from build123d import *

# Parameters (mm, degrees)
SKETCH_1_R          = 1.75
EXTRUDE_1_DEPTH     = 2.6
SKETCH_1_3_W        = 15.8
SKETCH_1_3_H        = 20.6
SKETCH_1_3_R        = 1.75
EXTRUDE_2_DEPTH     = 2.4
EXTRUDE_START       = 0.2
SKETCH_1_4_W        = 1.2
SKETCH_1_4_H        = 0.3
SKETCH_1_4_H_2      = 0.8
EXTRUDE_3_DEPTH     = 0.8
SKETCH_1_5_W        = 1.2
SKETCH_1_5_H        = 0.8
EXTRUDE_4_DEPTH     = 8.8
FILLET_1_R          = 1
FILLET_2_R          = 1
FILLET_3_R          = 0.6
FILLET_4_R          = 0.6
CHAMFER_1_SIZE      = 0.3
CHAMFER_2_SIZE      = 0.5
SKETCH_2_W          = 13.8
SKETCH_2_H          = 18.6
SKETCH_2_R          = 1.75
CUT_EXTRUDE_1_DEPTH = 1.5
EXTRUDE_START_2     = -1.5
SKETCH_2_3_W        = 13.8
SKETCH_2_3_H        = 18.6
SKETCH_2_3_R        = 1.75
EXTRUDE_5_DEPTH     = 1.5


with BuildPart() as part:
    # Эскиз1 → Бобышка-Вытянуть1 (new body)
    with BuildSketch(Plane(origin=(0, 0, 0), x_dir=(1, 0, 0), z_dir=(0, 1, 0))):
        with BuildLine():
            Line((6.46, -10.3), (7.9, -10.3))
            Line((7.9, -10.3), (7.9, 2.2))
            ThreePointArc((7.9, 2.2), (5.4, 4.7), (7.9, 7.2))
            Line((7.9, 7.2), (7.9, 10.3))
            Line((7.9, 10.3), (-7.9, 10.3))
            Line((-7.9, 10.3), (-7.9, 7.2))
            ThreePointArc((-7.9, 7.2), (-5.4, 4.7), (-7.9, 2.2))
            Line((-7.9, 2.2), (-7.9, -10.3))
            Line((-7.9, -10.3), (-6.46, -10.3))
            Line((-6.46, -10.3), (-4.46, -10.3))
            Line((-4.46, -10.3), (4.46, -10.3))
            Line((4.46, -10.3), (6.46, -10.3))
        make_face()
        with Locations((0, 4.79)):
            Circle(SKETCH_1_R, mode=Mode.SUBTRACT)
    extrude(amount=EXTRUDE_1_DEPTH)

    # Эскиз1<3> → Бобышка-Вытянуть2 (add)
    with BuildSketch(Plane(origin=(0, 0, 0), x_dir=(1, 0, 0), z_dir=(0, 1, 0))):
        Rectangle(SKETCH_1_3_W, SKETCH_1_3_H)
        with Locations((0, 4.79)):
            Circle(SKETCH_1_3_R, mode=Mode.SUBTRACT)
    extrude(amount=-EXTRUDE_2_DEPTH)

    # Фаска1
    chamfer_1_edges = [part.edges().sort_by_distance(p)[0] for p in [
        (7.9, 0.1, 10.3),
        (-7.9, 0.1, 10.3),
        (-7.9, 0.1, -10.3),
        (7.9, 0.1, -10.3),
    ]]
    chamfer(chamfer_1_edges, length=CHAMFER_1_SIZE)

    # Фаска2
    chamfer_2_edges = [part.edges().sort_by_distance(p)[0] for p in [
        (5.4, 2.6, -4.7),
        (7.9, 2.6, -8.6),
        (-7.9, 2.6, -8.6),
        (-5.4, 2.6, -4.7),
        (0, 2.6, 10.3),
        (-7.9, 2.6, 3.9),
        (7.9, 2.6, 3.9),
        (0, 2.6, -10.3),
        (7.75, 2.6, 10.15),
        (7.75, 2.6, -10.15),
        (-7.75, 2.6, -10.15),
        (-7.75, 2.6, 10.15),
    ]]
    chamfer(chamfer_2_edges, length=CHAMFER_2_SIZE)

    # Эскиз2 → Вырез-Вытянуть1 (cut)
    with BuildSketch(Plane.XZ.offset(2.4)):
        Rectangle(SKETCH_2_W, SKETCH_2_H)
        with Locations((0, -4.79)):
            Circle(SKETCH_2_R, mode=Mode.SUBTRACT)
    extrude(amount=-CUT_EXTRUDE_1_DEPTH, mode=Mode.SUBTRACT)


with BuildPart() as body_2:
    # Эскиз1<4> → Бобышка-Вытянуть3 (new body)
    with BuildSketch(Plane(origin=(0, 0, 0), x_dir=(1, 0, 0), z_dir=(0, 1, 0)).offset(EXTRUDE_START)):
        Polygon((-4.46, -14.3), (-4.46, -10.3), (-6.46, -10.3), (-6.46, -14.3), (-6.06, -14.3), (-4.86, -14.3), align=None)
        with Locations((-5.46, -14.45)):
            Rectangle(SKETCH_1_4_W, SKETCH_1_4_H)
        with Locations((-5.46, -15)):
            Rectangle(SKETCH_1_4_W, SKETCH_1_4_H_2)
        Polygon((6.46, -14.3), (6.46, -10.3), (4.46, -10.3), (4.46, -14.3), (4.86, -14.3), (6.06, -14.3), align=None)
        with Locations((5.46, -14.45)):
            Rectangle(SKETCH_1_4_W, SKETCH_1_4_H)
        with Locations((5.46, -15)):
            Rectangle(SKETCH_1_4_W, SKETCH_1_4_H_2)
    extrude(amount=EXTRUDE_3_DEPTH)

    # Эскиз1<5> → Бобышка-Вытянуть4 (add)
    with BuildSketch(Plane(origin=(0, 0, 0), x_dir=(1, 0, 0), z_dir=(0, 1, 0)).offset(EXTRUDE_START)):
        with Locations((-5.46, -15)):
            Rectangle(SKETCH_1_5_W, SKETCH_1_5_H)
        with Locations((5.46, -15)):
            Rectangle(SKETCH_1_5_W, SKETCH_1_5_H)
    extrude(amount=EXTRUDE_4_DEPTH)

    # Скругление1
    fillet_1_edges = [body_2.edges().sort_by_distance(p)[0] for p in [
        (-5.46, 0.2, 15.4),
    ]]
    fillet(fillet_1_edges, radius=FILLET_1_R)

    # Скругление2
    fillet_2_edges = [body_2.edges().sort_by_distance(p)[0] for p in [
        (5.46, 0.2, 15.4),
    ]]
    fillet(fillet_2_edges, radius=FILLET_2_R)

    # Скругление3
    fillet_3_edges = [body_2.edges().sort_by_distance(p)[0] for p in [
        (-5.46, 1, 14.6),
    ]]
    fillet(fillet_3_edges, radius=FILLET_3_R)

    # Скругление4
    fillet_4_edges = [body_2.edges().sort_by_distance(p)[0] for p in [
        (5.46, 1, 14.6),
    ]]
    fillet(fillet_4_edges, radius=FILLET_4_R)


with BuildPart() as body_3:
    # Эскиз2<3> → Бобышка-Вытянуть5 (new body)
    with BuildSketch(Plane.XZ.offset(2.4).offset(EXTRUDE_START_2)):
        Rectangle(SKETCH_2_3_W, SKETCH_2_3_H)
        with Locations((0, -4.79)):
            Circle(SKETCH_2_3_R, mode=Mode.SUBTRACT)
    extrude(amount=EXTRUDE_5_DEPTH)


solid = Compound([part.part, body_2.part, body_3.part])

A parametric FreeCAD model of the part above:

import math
import FreeCAD as App
import Part
import Sketcher


def edges_at(feature, points):
    """Names of the edges that pass closest to the given points."""
    edges = feature.Shape.Edges
    near = lambda p: min(range(len(edges)), key=lambda i: edges[i].distToShape(Part.Vertex(*p))[0])
    return sorted({f"Edge{near(p) + 1}" for p in points})

doc = App.newDocument("Part")
body = doc.addObject("PartDesign::Body", "Body")

# Sketch on XZ plane
sketch1 = doc.addObject("Sketcher::SketchObject", "Sketch")
body.addObject(sketch1)
sketch1.AttachmentSupport = (doc.XZ_Plane, [""])
sketch1.MapMode = "FlatFace"
sketch1.addGeometry(Part.LineSegment(App.Vector(7.9, 10.3, 0), App.Vector(7.9, -2.2, 0)), False)
sketch1.addGeometry(Part.ArcOfCircle(Part.Circle(App.Vector(7.9, -4.7, 0), App.Vector(0, 0, 1), 2.5), math.radians(90), math.radians(270)), False)
sketch1.addGeometry(Part.LineSegment(App.Vector(7.9, -7.2, 0), App.Vector(7.9, -10.3, 0)), False)
sketch1.addGeometry(Part.LineSegment(App.Vector(7.9, -10.3, 0), App.Vector(-7.9, -10.3, 0)), False)
sketch1.addGeometry(Part.LineSegment(App.Vector(-7.9, -10.3, 0), App.Vector(-7.9, -7.2, 0)), False)
sketch1.addGeometry(Part.ArcOfCircle(Part.Circle(App.Vector(-7.9, -4.7, 0), App.Vector(0, 0, 1), 2.5), math.radians(-90), math.radians(90)), False)
sketch1.addGeometry(Part.LineSegment(App.Vector(-7.9, -2.2, 0), App.Vector(-7.9, 10.3, 0)), False)
sketch1.addGeometry(Part.LineSegment(App.Vector(-7.9, 10.3, 0), App.Vector(7.9, 10.3, 0)), False)
sketch1.addGeometry(Part.Circle(App.Vector(0, -4.79, 0), App.Vector(0, 0, 1), 1.75), False)
sketch1.addConstraint(Sketcher.Constraint("Coincident", 0, 2, 1, 1))
sketch1.addConstraint(Sketcher.Constraint("Coincident", 1, 2, 2, 1))
sketch1.addConstraint(Sketcher.Constraint("Coincident", 2, 2, 3, 1))
sketch1.addConstraint(Sketcher.Constraint("Coincident", 3, 2, 4, 1))
sketch1.addConstraint(Sketcher.Constraint("Coincident", 4, 2, 5, 1))
sketch1.addConstraint(Sketcher.Constraint("Coincident", 5, 2, 6, 1))
sketch1.addConstraint(Sketcher.Constraint("Coincident", 6, 2, 7, 1))
sketch1.addConstraint(Sketcher.Constraint("Coincident", 7, 2, 0, 1))
sketch1.addConstraint(Sketcher.Constraint("Vertical", 0))
sketch1.addConstraint(Sketcher.Constraint("Vertical", 2))
sketch1.addConstraint(Sketcher.Constraint("Horizontal", 3))
sketch1.addConstraint(Sketcher.Constraint("Vertical", 4))
sketch1.addConstraint(Sketcher.Constraint("Vertical", 6))
sketch1.addConstraint(Sketcher.Constraint("Horizontal", 7))
sketch1.addConstraint(Sketcher.Constraint("Equal", 1, 5))
sketch1.addConstraint(Sketcher.Constraint("Symmetric", 2, 2, 6, 2, -1, 1))
sketch1.addConstraint(Sketcher.Constraint("Symmetric", 1, 3, 5, 3, -2))
sketch1.addConstraint(Sketcher.Constraint("PointOnObject", 8, 3, -2))
sketch1.addConstraint(Sketcher.Constraint("Vertical", 1, 3, 0, 2))
sketch1.addConstraint(Sketcher.Constraint("Vertical", 0, 2, 1, 2))
sketch1.addConstraint(Sketcher.Constraint("Vertical", 5, 3, 3, 2))
sketch1.addConstraint(Sketcher.Constraint("Diameter", 8, 3.5))
sketch1.addConstraint(Sketcher.Constraint("Radius", 1, 2.5))
sketch1.addConstraint(Sketcher.Constraint("DistanceX", 3, 2, 3, 1, 15.8))
sketch1.addConstraint(Sketcher.Constraint("DistanceY", 0, 2, 0, 1, 12.5))
sketch1.addConstraint(Sketcher.Constraint("DistanceY", 2, 2, 2, 1, 3.1))
sketch1.addConstraint(Sketcher.Constraint("DistanceY", 8, 3, -1, 1, 4.79))
pad1 = doc.addObject("PartDesign::Pad", "Pad")
body.addObject(pad1)
pad1.Profile = sketch1
pad1.Length = 2.6
pad1.Reversed = True

# Sketch on XZ plane
sketch2 = doc.addObject("Sketcher::SketchObject", "Sketch001")
body.addObject(sketch2)
sketch2.AttachmentSupport = (doc.XZ_Plane, [""])
sketch2.MapMode = "FlatFace"
sketch2.addGeometry(Part.LineSegment(App.Vector(-7.9, -10.3, 0), App.Vector(-7.9, 10.3, 0)), False)
sketch2.addGeometry(Part.LineSegment(App.Vector(-7.9, 10.3, 0), App.Vector(7.9, 10.3, 0)), False)
sketch2.addGeometry(Part.LineSegment(App.Vector(7.9, 10.3, 0), App.Vector(7.9, -10.3, 0)), False)
sketch2.addGeometry(Part.LineSegment(App.Vector(7.9, -10.3, 0), App.Vector(-7.9, -10.3, 0)), False)
sketch2.addGeometry(Part.Circle(App.Vector(0, -4.79, 0), App.Vector(0, 0, 1), 1.75), False)
sketch2.addConstraint(Sketcher.Constraint("Coincident", 0, 2, 1, 1))
sketch2.addConstraint(Sketcher.Constraint("Coincident", 1, 2, 2, 1))
sketch2.addConstraint(Sketcher.Constraint("Coincident", 2, 2, 3, 1))
sketch2.addConstraint(Sketcher.Constraint("Coincident", 3, 2, 0, 1))
sketch2.addConstraint(Sketcher.Constraint("Vertical", 0))
sketch2.addConstraint(Sketcher.Constraint("Horizontal", 1))
sketch2.addConstraint(Sketcher.Constraint("Vertical", 2))
sketch2.addConstraint(Sketcher.Constraint("Horizontal", 3))
sketch2.addConstraint(Sketcher.Constraint("Symmetric", 0, 2, 2, 2, -1, 1))
sketch2.addConstraint(Sketcher.Constraint("PointOnObject", 4, 3, -2))
sketch2.addConstraint(Sketcher.Constraint("Diameter", 4, 3.5))
sketch2.addConstraint(Sketcher.Constraint("DistanceX", 1, 1, 1, 2, 15.8))
sketch2.addConstraint(Sketcher.Constraint("DistanceY", 0, 1, 0, 2, 20.6))
sketch2.addConstraint(Sketcher.Constraint("DistanceY", 4, 3, -1, 1, 4.79))
pad2 = doc.addObject("PartDesign::Pad", "Pad001")
body.addObject(pad2)
pad2.Profile = sketch2
pad2.Length = 2.4
doc.recompute()

chamfer = doc.addObject("PartDesign::Chamfer", "Chamfer")
body.addObject(chamfer)
chamfer.Base = (pad2, edges_at(pad2, [
    (7.9, 0.1, 10.3),
    (-7.9, 0.1, 10.3),
    (-7.9, 0.1, -10.3),
    (7.9, 0.1, -10.3),
]))
chamfer.Size = 0.3
doc.recompute()

chamfer2 = doc.addObject("PartDesign::Chamfer", "Chamfer001")
body.addObject(chamfer2)
chamfer2.Base = (chamfer, edges_at(chamfer, [
    (5.4, 2.6, -4.7),
    (7.9, 2.6, -8.6),
    (-7.9, 2.6, -8.6),
    (-5.4, 2.6, -4.7),
    (0, 2.6, 10.3),
    (-7.9, 2.6, 3.9),
    (7.9, 2.6, 3.9),
    (0, 2.6, -10.3),
    (7.75, 2.6, 10.15),
    (7.75, 2.6, -10.15),
    (-7.75, 2.6, -10.15),
    (-7.75, 2.6, 10.15),
]))
chamfer2.Size = 0.5

# Sketch on XZ plane
sketch3 = doc.addObject("Sketcher::SketchObject", "Sketch002")
body.addObject(sketch3)
sketch3.AttachmentSupport = (doc.XZ_Plane, [""])
sketch3.MapMode = "FlatFace"
sketch3.AttachmentOffset = App.Placement(App.Vector(0, 0, 2.4), App.Rotation())
sketch3.addGeometry(Part.LineSegment(App.Vector(-6.9, 9.3, 0), App.Vector(-6.9, -9.3, 0)), False)
sketch3.addGeometry(Part.LineSegment(App.Vector(-6.9, -9.3, 0), App.Vector(6.9, -9.3, 0)), False)
sketch3.addGeometry(Part.LineSegment(App.Vector(6.9, -9.3, 0), App.Vector(6.9, 9.3, 0)), False)
sketch3.addGeometry(Part.LineSegment(App.Vector(6.9, 9.3, 0), App.Vector(-6.9, 9.3, 0)), False)
sketch3.addGeometry(Part.Circle(App.Vector(0, -4.79, 0), App.Vector(0, 0, 1), 1.75), False)
sketch3.addConstraint(Sketcher.Constraint("Coincident", 0, 2, 1, 1))
sketch3.addConstraint(Sketcher.Constraint("Coincident", 1, 2, 2, 1))
sketch3.addConstraint(Sketcher.Constraint("Coincident", 2, 2, 3, 1))
sketch3.addConstraint(Sketcher.Constraint("Coincident", 3, 2, 0, 1))
sketch3.addConstraint(Sketcher.Constraint("Vertical", 0))
sketch3.addConstraint(Sketcher.Constraint("Horizontal", 1))
sketch3.addConstraint(Sketcher.Constraint("Vertical", 2))
sketch3.addConstraint(Sketcher.Constraint("Horizontal", 3))
sketch3.addConstraint(Sketcher.Constraint("Symmetric", 0, 2, 2, 2, -1, 1))
sketch3.addConstraint(Sketcher.Constraint("PointOnObject", 4, 3, -2))
sketch3.addConstraint(Sketcher.Constraint("Diameter", 4, 3.5))
sketch3.addConstraint(Sketcher.Constraint("DistanceX", 1, 1, 1, 2, 13.8))
sketch3.addConstraint(Sketcher.Constraint("DistanceY", 0, 2, 0, 1, 18.6))
sketch3.addConstraint(Sketcher.Constraint("DistanceY", 4, 3, -1, 1, 4.79))
pocket1 = doc.addObject("PartDesign::Pocket", "Pocket")
body.addObject(pocket1)
pocket1.Profile = sketch3
pocket1.Length = 1.5
body2 = doc.addObject("PartDesign::Body", "Body001")
body2.AllowCompound = True

# Sketch on XZ plane
sketch4 = doc.addObject("Sketcher::SketchObject", "Sketch003")
body2.addObject(sketch4)
sketch4.AttachmentSupport = (doc.getObject("XZ_Plane001"), [""])
sketch4.MapMode = "FlatFace"
sketch4.AttachmentOffset = App.Placement(App.Vector(0, 0, -0.2), App.Rotation())
sketch4.addGeometry(Part.LineSegment(App.Vector(-4.46, 14.3, 0), App.Vector(-4.46, 10.3, 0)), False)
sketch4.addGeometry(Part.LineSegment(App.Vector(-4.46, 10.3, 0), App.Vector(-6.46, 10.3, 0)), False)
sketch4.addGeometry(Part.LineSegment(App.Vector(-6.46, 10.3, 0), App.Vector(-6.46, 14.3, 0)), False)
sketch4.addGeometry(Part.LineSegment(App.Vector(-6.46, 14.3, 0), App.Vector(-6.06, 14.3, 0)), False)
sketch4.addGeometry(Part.LineSegment(App.Vector(-6.06, 14.3, 0), App.Vector(-6.06, 15.4, 0)), False)
sketch4.addGeometry(Part.LineSegment(App.Vector(-6.06, 15.4, 0), App.Vector(-4.86, 15.4, 0)), False)
sketch4.addGeometry(Part.LineSegment(App.Vector(-4.86, 15.4, 0), App.Vector(-4.86, 14.3, 0)), False)
sketch4.addGeometry(Part.LineSegment(App.Vector(-4.86, 14.3, 0), App.Vector(-4.46, 14.3, 0)), False)
sketch4.addGeometry(Part.LineSegment(App.Vector(6.46, 14.3, 0), App.Vector(6.46, 10.3, 0)), False)
sketch4.addGeometry(Part.LineSegment(App.Vector(6.46, 10.3, 0), App.Vector(4.46, 10.3, 0)), False)
sketch4.addGeometry(Part.LineSegment(App.Vector(4.46, 10.3, 0), App.Vector(4.46, 14.3, 0)), False)
sketch4.addGeometry(Part.LineSegment(App.Vector(4.46, 14.3, 0), App.Vector(4.86, 14.3, 0)), False)
sketch4.addGeometry(Part.LineSegment(App.Vector(4.86, 14.3, 0), App.Vector(4.86, 15.4, 0)), False)
sketch4.addGeometry(Part.LineSegment(App.Vector(4.86, 15.4, 0), App.Vector(6.06, 15.4, 0)), False)
sketch4.addGeometry(Part.LineSegment(App.Vector(6.06, 15.4, 0), App.Vector(6.06, 14.3, 0)), False)
sketch4.addGeometry(Part.LineSegment(App.Vector(6.06, 14.3, 0), App.Vector(6.46, 14.3, 0)), False)
sketch4.addConstraint(Sketcher.Constraint("Coincident", 0, 2, 1, 1))
sketch4.addConstraint(Sketcher.Constraint("Coincident", 1, 2, 2, 1))
sketch4.addConstraint(Sketcher.Constraint("Coincident", 2, 2, 3, 1))
sketch4.addConstraint(Sketcher.Constraint("Coincident", 3, 2, 4, 1))
sketch4.addConstraint(Sketcher.Constraint("Coincident", 4, 2, 5, 1))
sketch4.addConstraint(Sketcher.Constraint("Coincident", 5, 2, 6, 1))
sketch4.addConstraint(Sketcher.Constraint("Coincident", 6, 2, 7, 1))
sketch4.addConstraint(Sketcher.Constraint("Coincident", 7, 2, 0, 1))
sketch4.addConstraint(Sketcher.Constraint("Coincident", 8, 2, 9, 1))
sketch4.addConstraint(Sketcher.Constraint("Coincident", 9, 2, 10, 1))
sketch4.addConstraint(Sketcher.Constraint("Coincident", 10, 2, 11, 1))
sketch4.addConstraint(Sketcher.Constraint("Coincident", 11, 2, 12, 1))
sketch4.addConstraint(Sketcher.Constraint("Coincident", 12, 2, 13, 1))
sketch4.addConstraint(Sketcher.Constraint("Coincident", 13, 2, 14, 1))
sketch4.addConstraint(Sketcher.Constraint("Coincident", 14, 2, 15, 1))
sketch4.addConstraint(Sketcher.Constraint("Coincident", 15, 2, 8, 1))
sketch4.addConstraint(Sketcher.Constraint("Vertical", 0))
sketch4.addConstraint(Sketcher.Constraint("Horizontal", 1))
sketch4.addConstraint(Sketcher.Constraint("Vertical", 2))
sketch4.addConstraint(Sketcher.Constraint("Horizontal", 3))
sketch4.addConstraint(Sketcher.Constraint("Vertical", 4))
sketch4.addConstraint(Sketcher.Constraint("Horizontal", 5))
sketch4.addConstraint(Sketcher.Constraint("Vertical", 6))
sketch4.addConstraint(Sketcher.Constraint("Horizontal", 7))
sketch4.addConstraint(Sketcher.Constraint("Vertical", 8))
sketch4.addConstraint(Sketcher.Constraint("Horizontal", 9))
sketch4.addConstraint(Sketcher.Constraint("Vertical", 10))
sketch4.addConstraint(Sketcher.Constraint("Horizontal", 11))
sketch4.addConstraint(Sketcher.Constraint("Vertical", 12))
sketch4.addConstraint(Sketcher.Constraint("Horizontal", 13))
sketch4.addConstraint(Sketcher.Constraint("Vertical", 14))
sketch4.addConstraint(Sketcher.Constraint("Horizontal", 15))
sketch4.addConstraint(Sketcher.Constraint("Symmetric", 1, 2, 8, 2, -2))
sketch4.addConstraint(Sketcher.Constraint("Symmetric", 7, 2, 10, 2, -2))
sketch4.addConstraint(Sketcher.Constraint("Symmetric", 5, 2, 12, 2, -2))
sketch4.addConstraint(Sketcher.Constraint("Symmetric", 3, 2, 14, 2, -2))
sketch4.addConstraint(Sketcher.Constraint("Horizontal", 3, 2, 6, 2))
sketch4.addConstraint(Sketcher.Constraint("Equal", 3, 7))
sketch4.addConstraint(Sketcher.Constraint("DistanceX", 1, 2, 1, 1, 2.0))
sketch4.addConstraint(Sketcher.Constraint("DistanceY", 0, 2, 0, 1, 4.0))
sketch4.addConstraint(Sketcher.Constraint("DistanceX", 3, 1, 3, 2, 0.4))
sketch4.addConstraint(Sketcher.Constraint("DistanceY", 4, 1, 4, 2, 1.1))
sketch4.addConstraint(Sketcher.Constraint("DistanceY", -1, 1, 0, 2, 10.3))
sketch4.addConstraint(Sketcher.Constraint("DistanceX", 0, 2, -1, 1, 4.46))
pad3 = doc.addObject("PartDesign::Pad", "Pad002")
body2.addObject(pad3)
pad3.Profile = sketch4
pad3.Length = 0.8
pad3.Reversed = True

# Sketch on XZ plane
sketch5 = doc.addObject("Sketcher::SketchObject", "Sketch004")
body2.addObject(sketch5)
sketch5.AttachmentSupport = (doc.getObject("XZ_Plane001"), [""])
sketch5.MapMode = "FlatFace"
sketch5.AttachmentOffset = App.Placement(App.Vector(0, 0, -0.2), App.Rotation())
sketch5.addGeometry(Part.LineSegment(App.Vector(-6.06, 14.6, 0), App.Vector(-6.06, 15.4, 0)), False)
sketch5.addGeometry(Part.LineSegment(App.Vector(-6.06, 15.4, 0), App.Vector(-4.86, 15.4, 0)), False)
sketch5.addGeometry(Part.LineSegment(App.Vector(-4.86, 15.4, 0), App.Vector(-4.86, 14.6, 0)), False)
sketch5.addGeometry(Part.LineSegment(App.Vector(-4.86, 14.6, 0), App.Vector(-6.06, 14.6, 0)), False)
sketch5.addGeometry(Part.LineSegment(App.Vector(4.86, 14.6, 0), App.Vector(4.86, 15.4, 0)), False)
sketch5.addGeometry(Part.LineSegment(App.Vector(4.86, 15.4, 0), App.Vector(6.06, 15.4, 0)), False)
sketch5.addGeometry(Part.LineSegment(App.Vector(6.06, 15.4, 0), App.Vector(6.06, 14.6, 0)), False)
sketch5.addGeometry(Part.LineSegment(App.Vector(6.06, 14.6, 0), App.Vector(4.86, 14.6, 0)), False)
sketch5.addConstraint(Sketcher.Constraint("Coincident", 0, 2, 1, 1))
sketch5.addConstraint(Sketcher.Constraint("Coincident", 1, 2, 2, 1))
sketch5.addConstraint(Sketcher.Constraint("Coincident", 2, 2, 3, 1))
sketch5.addConstraint(Sketcher.Constraint("Coincident", 3, 2, 0, 1))
sketch5.addConstraint(Sketcher.Constraint("Coincident", 4, 2, 5, 1))
sketch5.addConstraint(Sketcher.Constraint("Coincident", 5, 2, 6, 1))
sketch5.addConstraint(Sketcher.Constraint("Coincident", 6, 2, 7, 1))
sketch5.addConstraint(Sketcher.Constraint("Coincident", 7, 2, 4, 1))
sketch5.addConstraint(Sketcher.Constraint("Vertical", 0))
sketch5.addConstraint(Sketcher.Constraint("Horizontal", 1))
sketch5.addConstraint(Sketcher.Constraint("Vertical", 2))
sketch5.addConstraint(Sketcher.Constraint("Horizontal", 3))
sketch5.addConstraint(Sketcher.Constraint("Vertical", 4))
sketch5.addConstraint(Sketcher.Constraint("Horizontal", 5))
sketch5.addConstraint(Sketcher.Constraint("Vertical", 6))
sketch5.addConstraint(Sketcher.Constraint("Horizontal", 7))
sketch5.addConstraint(Sketcher.Constraint("Symmetric", 1, 2, 4, 2, -2))
sketch5.addConstraint(Sketcher.Constraint("Symmetric", 3, 2, 6, 2, -2))
sketch5.addConstraint(Sketcher.Constraint("DistanceX", 1, 1, 1, 2, 1.2))
sketch5.addConstraint(Sketcher.Constraint("DistanceY", 0, 1, 0, 2, 0.8))
sketch5.addConstraint(Sketcher.Constraint("DistanceY", -1, 1, 0, 2, 15.4))
sketch5.addConstraint(Sketcher.Constraint("DistanceX", 0, 2, -1, 1, 6.06))
pad4 = doc.addObject("PartDesign::Pad", "Pad003")
body2.addObject(pad4)
pad4.Profile = sketch5
pad4.Length = 8.8
pad4.Reversed = True
doc.recompute()

fillet = doc.addObject("PartDesign::Fillet", "Fillet")
body2.addObject(fillet)
fillet.Base = (pad4, edges_at(pad4, [(-5.46, 0.2, 15.4)]))
fillet.Radius = 1
doc.recompute()

fillet2 = doc.addObject("PartDesign::Fillet", "Fillet001")
body2.addObject(fillet2)
fillet2.Base = (fillet, edges_at(fillet, [(5.46, 0.2, 15.4)]))
fillet2.Radius = 1
doc.recompute()

fillet3 = doc.addObject("PartDesign::Fillet", "Fillet002")
body2.addObject(fillet3)
fillet3.Base = (fillet2, edges_at(fillet2, [(-5.46, 1, 14.6)]))
fillet3.Radius = 0.6
doc.recompute()

fillet4 = doc.addObject("PartDesign::Fillet", "Fillet003")
body2.addObject(fillet4)
fillet4.Base = (fillet3, edges_at(fillet3, [(5.46, 1, 14.6)]))
fillet4.Radius = 0.6
body3 = doc.addObject("PartDesign::Body", "Body002")

# Sketch on XZ plane
sketch6 = doc.addObject("Sketcher::SketchObject", "Sketch005")
body3.addObject(sketch6)
sketch6.AttachmentSupport = (doc.getObject("XZ_Plane002"), [""])
sketch6.MapMode = "FlatFace"
sketch6.AttachmentOffset = App.Placement(App.Vector(0, 0, 0.9), App.Rotation())
sketch6.addGeometry(Part.LineSegment(App.Vector(-6.9, 9.3, 0), App.Vector(-6.9, -9.3, 0)), False)
sketch6.addGeometry(Part.LineSegment(App.Vector(-6.9, -9.3, 0), App.Vector(6.9, -9.3, 0)), False)
sketch6.addGeometry(Part.LineSegment(App.Vector(6.9, -9.3, 0), App.Vector(6.9, 9.3, 0)), False)
sketch6.addGeometry(Part.LineSegment(App.Vector(6.9, 9.3, 0), App.Vector(-6.9, 9.3, 0)), False)
sketch6.addGeometry(Part.Circle(App.Vector(0, -4.79, 0), App.Vector(0, 0, 1), 1.75), False)
sketch6.addConstraint(Sketcher.Constraint("Coincident", 0, 2, 1, 1))
sketch6.addConstraint(Sketcher.Constraint("Coincident", 1, 2, 2, 1))
sketch6.addConstraint(Sketcher.Constraint("Coincident", 2, 2, 3, 1))
sketch6.addConstraint(Sketcher.Constraint("Coincident", 3, 2, 0, 1))
sketch6.addConstraint(Sketcher.Constraint("Vertical", 0))
sketch6.addConstraint(Sketcher.Constraint("Horizontal", 1))
sketch6.addConstraint(Sketcher.Constraint("Vertical", 2))
sketch6.addConstraint(Sketcher.Constraint("Horizontal", 3))
sketch6.addConstraint(Sketcher.Constraint("Symmetric", 0, 2, 2, 2, -1, 1))
sketch6.addConstraint(Sketcher.Constraint("PointOnObject", 4, 3, -2))
sketch6.addConstraint(Sketcher.Constraint("Diameter", 4, 3.5))
sketch6.addConstraint(Sketcher.Constraint("DistanceX", 1, 1, 1, 2, 13.8))
sketch6.addConstraint(Sketcher.Constraint("DistanceY", 0, 2, 0, 1, 18.6))
sketch6.addConstraint(Sketcher.Constraint("DistanceY", 4, 3, -1, 1, 4.79))
pad5 = doc.addObject("PartDesign::Pad", "Pad004")
body3.addObject(pad5)
pad5.Profile = sketch6
pad5.Length = 1.5

doc.recompute()
